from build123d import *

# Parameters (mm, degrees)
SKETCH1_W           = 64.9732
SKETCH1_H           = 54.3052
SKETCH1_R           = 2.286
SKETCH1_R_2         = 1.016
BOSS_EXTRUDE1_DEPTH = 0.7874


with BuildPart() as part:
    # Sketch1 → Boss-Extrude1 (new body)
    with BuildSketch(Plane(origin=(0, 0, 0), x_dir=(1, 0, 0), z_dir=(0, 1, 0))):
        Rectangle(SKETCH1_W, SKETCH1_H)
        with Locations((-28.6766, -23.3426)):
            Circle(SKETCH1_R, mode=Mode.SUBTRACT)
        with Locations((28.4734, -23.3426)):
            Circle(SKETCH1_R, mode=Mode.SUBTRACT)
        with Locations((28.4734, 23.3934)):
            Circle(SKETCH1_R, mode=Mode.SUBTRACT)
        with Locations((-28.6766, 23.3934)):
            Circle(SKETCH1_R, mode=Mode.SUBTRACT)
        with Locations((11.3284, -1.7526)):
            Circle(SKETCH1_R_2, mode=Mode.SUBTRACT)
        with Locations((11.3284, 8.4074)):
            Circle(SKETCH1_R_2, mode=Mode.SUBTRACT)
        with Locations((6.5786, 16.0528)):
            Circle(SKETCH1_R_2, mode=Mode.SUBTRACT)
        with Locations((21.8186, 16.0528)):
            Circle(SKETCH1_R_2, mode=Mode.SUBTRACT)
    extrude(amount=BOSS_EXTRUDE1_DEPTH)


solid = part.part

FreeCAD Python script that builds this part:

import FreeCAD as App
import Part
import Sketcher

V = App.Vector
Q = App.Units.Quantity

doc = App.newDocument("Part")
body = doc.addObject("PartDesign::Body", "Body")

sketch1 = doc.addObject("Sketcher::SketchObject", "Sketch")
body.addObject(sketch1)
sketch1.AttachmentSupport = (doc.XZ_Plane, [""])
sketch1.MapMode = "FlatFace"
sketch1.addGeometry([
    Part.LineSegment(V(-32.4866, -27.1526, 0), V(-32.4866, 27.1526, 0)),
    Part.LineSegment(V(-32.4866, 27.1526, 0), V(32.4866, 27.1526, 0)),
    Part.LineSegment(V(32.4866, 27.1526, 0), V(32.4866, -27.1526, 0)),
    Part.LineSegment(V(32.4866, -27.1526, 0), V(-32.4866, -27.1526, 0)),
    Part.Circle(V(-28.6766, 23.3426, 0), V(0, 0, 1), 2.286),
    Part.Circle(V(28.4734, 23.3426, 0), V(0, 0, 1), 2.286),
    Part.Circle(V(11.3284, 1.7526, 0), V(0, 0, 1), 1.016),
    Part.Circle(V(-28.6766, -23.3934, 0), V(0, 0, 1), 2.286),
    Part.Circle(V(11.3284, -8.4074, 0), V(0, 0, 1), 1.016),
    Part.Circle(V(6.5786, -16.0528, 0), V(0, 0, 1), 1.016),
    Part.Circle(V(21.8186, -16.0528, 0), V(0, 0, 1), 1.016),
    Part.Circle(V(28.4734, -23.3934, 0), V(0, 0, 1), 2.286),
], False)
sketch1.addConstraint([
    Sketcher.Constraint("Coincident", 0, 2, 1, 1),
    Sketcher.Constraint("Coincident", 1, 2, 2, 1),
    Sketcher.Constraint("Coincident", 2, 2, 3, 1),
    Sketcher.Constraint("Coincident", 3, 2, 0, 1),
    Sketcher.Constraint("Vertical", 0),
    Sketcher.Constraint("Horizontal", 1),
    Sketcher.Constraint("Vertical", 2),
    Sketcher.Constraint("Horizontal", 3),
    Sketcher.Constraint("Equal", 4, 5),
    Sketcher.Constraint("Equal", 5, 7),
    Sketcher.Constraint("Equal", 6, 8),
    Sketcher.Constraint("Equal", 8, 9),
    Sketcher.Constraint("Equal", 9, 10),
    Sketcher.Constraint("Equal", 7, 11),
    Sketcher.Constraint("Symmetric", 0, 2, 2, 2, -1, 1),
    Sketcher.Constraint("Horizontal", 4, 3, 5, 3),
    Sketcher.Constraint("Horizontal", 9, 3, 10, 3),
    Sketcher.Constraint("Horizontal", 7, 3, 11, 3),
    Sketcher.Constraint("Vertical", 4, 3, 7, 3),
    Sketcher.Constraint("Vertical", 6, 3, 8, 3),
    Sketcher.Constraint("Vertical", 5, 3, 11, 3),
    Sketcher.Constraint("Diameter", 4, Q("0.18 in")),
    Sketcher.Constraint("Diameter", 6, Q("0.08 in")),
    Sketcher.Constraint("DistanceY", 6, 3, 0, 2, Q("1 in")),
    Sketcher.Constraint("DistanceY", 8, 3, 6, 3, Q("0.4 in")),
    Sketcher.Constraint("DistanceX", 9, 3, 10, 3, Q("0.6 in")),
    Sketcher.Constraint("DistanceX", 1, 1, 1, 2, Q("2.558 in")),
    Sketcher.Constraint("DistanceY", 0, 1, 0, 2, Q("2.138 in")),
    Sketcher.Constraint("DistanceX", 4, 3, 5, 3, Q("2.25 in")),
    Sketcher.Constraint("DistanceY", 6, 3, 5, 3, Q("0.85 in")),
    Sketcher.Constraint("DistanceY", 7, 3, 4, 3, Q("1.84 in")),
    Sketcher.Constraint("DistanceX", 0, 2, 4, 3, Q("0.15 in")),
    Sketcher.Constraint("DistanceX", 10, 3, 1, 2, Q("0.42 in")),
    Sketcher.Constraint("DistanceX", -1, 1, 6, 3, Q("0.446 in")),
    Sketcher.Constraint("DistanceY", 9, 3, -1, 1, Q("0.632 in")),
])
pad1 = doc.addObject("PartDesign::Pad", "Pad")
body.addObject(pad1)
pad1.Profile = sketch1
pad1.Length = Q("0.031 in")
pad1.Reversed = True

doc.recompute()
